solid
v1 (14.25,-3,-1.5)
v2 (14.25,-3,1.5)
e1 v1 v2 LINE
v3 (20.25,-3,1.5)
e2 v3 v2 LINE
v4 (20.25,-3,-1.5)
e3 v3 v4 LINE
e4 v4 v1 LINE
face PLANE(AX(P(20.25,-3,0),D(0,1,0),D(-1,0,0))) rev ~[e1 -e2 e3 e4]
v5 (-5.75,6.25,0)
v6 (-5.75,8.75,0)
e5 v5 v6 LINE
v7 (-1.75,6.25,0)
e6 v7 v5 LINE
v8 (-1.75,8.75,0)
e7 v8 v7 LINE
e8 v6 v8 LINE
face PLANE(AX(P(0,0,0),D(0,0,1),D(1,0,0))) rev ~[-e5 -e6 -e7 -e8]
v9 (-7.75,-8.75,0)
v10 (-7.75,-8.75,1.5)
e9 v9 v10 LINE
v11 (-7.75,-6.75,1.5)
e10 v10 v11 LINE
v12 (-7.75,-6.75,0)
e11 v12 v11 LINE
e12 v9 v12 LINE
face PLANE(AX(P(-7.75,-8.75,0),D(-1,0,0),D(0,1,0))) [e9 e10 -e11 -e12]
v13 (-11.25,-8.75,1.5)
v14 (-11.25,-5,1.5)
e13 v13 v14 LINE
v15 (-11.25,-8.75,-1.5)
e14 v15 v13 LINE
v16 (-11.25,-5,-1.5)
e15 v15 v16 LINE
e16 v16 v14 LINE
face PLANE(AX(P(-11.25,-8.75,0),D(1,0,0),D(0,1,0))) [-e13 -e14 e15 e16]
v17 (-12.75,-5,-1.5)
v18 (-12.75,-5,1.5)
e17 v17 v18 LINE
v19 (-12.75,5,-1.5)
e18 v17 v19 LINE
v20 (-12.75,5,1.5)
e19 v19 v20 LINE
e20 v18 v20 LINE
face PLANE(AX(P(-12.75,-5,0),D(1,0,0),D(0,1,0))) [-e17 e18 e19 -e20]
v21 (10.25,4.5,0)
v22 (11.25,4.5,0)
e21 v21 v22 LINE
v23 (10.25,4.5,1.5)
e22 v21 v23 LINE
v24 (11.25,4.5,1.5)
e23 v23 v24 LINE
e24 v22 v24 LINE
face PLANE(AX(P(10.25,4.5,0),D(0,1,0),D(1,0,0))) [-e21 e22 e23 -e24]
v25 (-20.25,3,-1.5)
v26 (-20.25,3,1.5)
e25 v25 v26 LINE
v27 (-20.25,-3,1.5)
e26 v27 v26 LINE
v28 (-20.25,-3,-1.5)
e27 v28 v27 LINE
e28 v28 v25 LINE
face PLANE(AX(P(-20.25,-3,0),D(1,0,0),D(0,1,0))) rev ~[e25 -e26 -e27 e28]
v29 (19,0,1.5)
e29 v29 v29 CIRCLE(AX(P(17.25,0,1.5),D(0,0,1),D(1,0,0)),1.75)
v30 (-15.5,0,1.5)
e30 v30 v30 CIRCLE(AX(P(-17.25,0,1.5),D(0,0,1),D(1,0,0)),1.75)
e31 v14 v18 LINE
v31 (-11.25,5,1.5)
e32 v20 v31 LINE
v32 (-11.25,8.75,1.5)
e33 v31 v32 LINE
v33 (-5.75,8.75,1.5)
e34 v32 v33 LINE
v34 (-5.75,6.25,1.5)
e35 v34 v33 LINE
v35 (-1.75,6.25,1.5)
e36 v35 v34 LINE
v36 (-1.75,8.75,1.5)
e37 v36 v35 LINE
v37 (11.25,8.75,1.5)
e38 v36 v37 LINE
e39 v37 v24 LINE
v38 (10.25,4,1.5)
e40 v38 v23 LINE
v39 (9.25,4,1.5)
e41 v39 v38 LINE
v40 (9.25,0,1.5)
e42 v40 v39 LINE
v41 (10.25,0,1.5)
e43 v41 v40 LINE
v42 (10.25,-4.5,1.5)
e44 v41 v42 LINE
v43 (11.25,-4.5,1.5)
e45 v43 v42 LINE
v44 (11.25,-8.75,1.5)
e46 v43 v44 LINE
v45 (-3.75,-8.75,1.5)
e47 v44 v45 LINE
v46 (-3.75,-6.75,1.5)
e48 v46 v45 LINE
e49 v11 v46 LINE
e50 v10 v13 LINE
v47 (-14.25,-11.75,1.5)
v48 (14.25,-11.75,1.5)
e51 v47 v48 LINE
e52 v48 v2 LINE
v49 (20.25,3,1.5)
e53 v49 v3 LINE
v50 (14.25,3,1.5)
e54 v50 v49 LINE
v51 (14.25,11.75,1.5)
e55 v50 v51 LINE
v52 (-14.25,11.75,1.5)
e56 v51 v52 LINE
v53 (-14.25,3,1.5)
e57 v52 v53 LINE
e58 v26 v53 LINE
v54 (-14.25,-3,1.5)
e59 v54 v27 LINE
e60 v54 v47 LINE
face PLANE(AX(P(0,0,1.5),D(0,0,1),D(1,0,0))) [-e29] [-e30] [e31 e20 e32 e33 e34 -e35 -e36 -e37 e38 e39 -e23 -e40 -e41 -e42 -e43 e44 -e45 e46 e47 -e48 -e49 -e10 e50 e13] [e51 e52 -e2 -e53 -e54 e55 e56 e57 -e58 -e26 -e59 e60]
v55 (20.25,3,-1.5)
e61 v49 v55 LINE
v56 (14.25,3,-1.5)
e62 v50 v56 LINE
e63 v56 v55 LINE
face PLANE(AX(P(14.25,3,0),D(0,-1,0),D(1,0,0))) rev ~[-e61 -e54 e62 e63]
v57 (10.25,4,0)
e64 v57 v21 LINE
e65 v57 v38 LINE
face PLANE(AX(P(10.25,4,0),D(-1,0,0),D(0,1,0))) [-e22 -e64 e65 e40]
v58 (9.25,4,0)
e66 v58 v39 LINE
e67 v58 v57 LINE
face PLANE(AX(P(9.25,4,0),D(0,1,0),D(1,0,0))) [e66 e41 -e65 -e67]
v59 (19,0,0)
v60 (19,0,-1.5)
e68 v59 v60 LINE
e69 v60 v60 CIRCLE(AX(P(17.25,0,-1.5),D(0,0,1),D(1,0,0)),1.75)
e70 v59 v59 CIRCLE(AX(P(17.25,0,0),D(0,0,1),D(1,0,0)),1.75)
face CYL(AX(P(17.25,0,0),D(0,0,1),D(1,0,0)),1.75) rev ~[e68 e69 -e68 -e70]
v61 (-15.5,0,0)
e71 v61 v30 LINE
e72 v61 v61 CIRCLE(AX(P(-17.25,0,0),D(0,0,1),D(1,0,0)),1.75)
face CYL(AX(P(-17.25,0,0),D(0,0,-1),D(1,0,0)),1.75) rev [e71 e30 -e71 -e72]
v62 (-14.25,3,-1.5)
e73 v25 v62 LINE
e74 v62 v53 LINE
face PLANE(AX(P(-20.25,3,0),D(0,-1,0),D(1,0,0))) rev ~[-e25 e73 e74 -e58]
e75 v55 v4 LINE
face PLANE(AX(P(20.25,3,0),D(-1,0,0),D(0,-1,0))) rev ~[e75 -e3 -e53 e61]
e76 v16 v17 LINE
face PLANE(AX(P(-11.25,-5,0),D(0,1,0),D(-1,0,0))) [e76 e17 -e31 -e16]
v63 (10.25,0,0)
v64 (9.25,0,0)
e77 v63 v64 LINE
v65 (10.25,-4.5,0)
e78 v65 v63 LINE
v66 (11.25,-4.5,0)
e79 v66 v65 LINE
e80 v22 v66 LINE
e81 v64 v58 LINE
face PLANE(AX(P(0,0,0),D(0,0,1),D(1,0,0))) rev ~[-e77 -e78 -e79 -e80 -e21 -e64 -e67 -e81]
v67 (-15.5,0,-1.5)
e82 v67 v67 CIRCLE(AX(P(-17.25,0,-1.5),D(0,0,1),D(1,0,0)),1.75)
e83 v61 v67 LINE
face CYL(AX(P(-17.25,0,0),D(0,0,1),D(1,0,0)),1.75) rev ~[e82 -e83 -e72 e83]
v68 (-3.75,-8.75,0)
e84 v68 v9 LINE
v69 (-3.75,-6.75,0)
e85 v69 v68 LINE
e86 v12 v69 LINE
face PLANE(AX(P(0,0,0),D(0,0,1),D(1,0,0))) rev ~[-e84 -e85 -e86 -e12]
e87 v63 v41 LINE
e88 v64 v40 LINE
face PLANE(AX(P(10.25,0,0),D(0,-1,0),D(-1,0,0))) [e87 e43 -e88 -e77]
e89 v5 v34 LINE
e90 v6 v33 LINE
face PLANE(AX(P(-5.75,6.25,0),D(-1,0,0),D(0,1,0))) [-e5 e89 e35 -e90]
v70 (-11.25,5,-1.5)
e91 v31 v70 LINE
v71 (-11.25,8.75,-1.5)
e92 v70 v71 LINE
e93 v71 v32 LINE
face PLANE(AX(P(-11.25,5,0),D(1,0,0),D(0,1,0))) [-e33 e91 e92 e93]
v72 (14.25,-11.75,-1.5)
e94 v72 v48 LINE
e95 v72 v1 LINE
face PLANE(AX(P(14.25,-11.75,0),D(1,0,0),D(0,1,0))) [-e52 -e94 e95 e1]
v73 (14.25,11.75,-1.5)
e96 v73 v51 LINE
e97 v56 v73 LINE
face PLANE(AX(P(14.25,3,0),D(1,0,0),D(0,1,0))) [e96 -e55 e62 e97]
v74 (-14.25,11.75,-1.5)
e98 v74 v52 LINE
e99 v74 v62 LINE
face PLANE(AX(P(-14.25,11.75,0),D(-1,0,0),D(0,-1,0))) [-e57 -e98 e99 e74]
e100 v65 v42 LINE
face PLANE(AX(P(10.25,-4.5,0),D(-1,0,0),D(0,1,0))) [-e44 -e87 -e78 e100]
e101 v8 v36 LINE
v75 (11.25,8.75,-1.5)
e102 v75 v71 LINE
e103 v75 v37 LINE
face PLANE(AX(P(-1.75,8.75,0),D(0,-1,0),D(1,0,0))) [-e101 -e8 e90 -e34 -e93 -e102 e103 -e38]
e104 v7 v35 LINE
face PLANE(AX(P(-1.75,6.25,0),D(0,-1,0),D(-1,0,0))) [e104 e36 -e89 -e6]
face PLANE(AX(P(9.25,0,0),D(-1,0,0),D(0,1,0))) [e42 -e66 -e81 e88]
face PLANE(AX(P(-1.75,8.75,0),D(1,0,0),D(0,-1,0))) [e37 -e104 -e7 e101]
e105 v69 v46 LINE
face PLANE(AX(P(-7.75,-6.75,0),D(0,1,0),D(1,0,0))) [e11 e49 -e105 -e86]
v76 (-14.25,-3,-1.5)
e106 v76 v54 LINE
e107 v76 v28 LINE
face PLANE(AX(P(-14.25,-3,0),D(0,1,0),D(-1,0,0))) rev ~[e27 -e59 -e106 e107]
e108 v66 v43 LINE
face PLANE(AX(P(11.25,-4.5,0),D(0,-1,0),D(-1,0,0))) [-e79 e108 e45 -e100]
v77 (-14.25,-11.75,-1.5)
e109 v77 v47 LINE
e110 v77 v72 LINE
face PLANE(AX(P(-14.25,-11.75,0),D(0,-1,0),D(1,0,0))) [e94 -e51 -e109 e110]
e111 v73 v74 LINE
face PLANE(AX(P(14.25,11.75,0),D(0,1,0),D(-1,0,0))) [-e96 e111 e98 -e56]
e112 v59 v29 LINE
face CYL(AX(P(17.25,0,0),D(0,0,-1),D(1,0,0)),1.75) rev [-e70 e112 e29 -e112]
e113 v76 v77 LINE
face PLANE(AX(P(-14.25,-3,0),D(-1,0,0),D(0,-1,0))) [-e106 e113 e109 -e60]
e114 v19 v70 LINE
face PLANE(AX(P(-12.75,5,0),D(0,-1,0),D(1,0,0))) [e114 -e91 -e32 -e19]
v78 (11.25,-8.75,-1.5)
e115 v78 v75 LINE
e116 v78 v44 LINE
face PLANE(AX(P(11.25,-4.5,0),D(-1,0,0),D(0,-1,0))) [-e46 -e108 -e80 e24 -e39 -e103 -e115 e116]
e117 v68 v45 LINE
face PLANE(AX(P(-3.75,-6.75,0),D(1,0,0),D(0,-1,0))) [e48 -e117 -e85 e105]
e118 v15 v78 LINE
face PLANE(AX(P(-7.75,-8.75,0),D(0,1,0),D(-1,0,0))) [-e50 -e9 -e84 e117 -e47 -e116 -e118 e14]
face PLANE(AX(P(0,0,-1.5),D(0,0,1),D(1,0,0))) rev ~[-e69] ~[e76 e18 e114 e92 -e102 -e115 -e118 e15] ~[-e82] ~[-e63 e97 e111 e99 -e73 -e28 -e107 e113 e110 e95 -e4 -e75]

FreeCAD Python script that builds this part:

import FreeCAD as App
import Part
import Sketcher

V = App.Vector


def add_polygon(sketch, points):
    """Adds a closed chain of lines whose ends are joined by coincident constraints."""
    first, n = sketch.GeometryCount, len(points)
    for a, b in zip(points, points[1:] + points[:1]):
        sketch.addGeometry(Part.LineSegment(App.Vector(*a, 0), App.Vector(*b, 0)), False)
    for i in range(n):
        sketch.addConstraint(Sketcher.Constraint("Coincident", first + i, 2, first + (i + 1) % n, 1))

doc = App.newDocument("Part")
body = doc.addObject("PartDesign::Body", "Body")

# Sketch on XY plane
sketch1 = body.newObject("Sketcher::SketchObject", "Sketch")
sketch1.AttachmentSupport = (doc.getObject("XY_Plane"), [""])
sketch1.MapMode = "FlatFace"
add_polygon(sketch1, [(14.2, 3), (14.2, 11.8), (-14.2, 11.8), (-14.2, 3), (-20.2, 3), (-20.2, -3), (-14.2, -3), (-14.2, -11.8), (14.2, -11.8), (14.2, -3), (20.2, -3), (20.2, 3)])  # lines 0-11
add_polygon(sketch1, [(-11.2, 5), (-11.2, 8.8), (11.2, 8.8), (11.2, -8.8), (-11.2, -8.8), (-11.2, -5), (-12.8, -5), (-12.8, 5)])  # lines 12-19
sketch1.addGeometry(Part.Circle(V(17.2, 0, 0), V(0, 0, 1), 1.8), False)  # 20
sketch1.addGeometry(Part.Circle(V(-17.2, 0, 0), V(0, 0, 1), 1.8), False)  # 21
sketch1.addConstraint([
    Sketcher.Constraint("Vertical", 0),
    Sketcher.Constraint("Horizontal", 1),
    Sketcher.Constraint("Vertical", 2),
    Sketcher.Constraint("Horizontal", 3),
    Sketcher.Constraint("Vertical", 4),
    Sketcher.Constraint("Horizontal", 5),
    Sketcher.Constraint("Vertical", 6),
    Sketcher.Constraint("Horizontal", 7),
    Sketcher.Constraint("Vertical", 8),
    Sketcher.Constraint("Horizontal", 9),
    Sketcher.Constraint("Vertical", 10),
    Sketcher.Constraint("Horizontal", 11),
    Sketcher.Constraint("Vertical", 12),
    Sketcher.Constraint("Horizontal", 13),
    Sketcher.Constraint("Vertical", 14),
    Sketcher.Constraint("Horizontal", 15),
    Sketcher.Constraint("Vertical", 16),
    Sketcher.Constraint("Horizontal", 17),
    Sketcher.Constraint("Vertical", 18),
    Sketcher.Constraint("Horizontal", 19),
    Sketcher.Constraint("Equal", 20, 21),
    Sketcher.Constraint("Symmetric", 20, 3, 21, 3, -1, 1),
    Sketcher.Constraint("Symmetric", 0, 2, 6, 2, -1, 1),
    Sketcher.Constraint("Symmetric", 2, 2, 8, 2, -1, 1),
    Sketcher.Constraint("Symmetric", 4, 2, 10, 2, -1, 1),
    Sketcher.Constraint("Symmetric", 12, 2, 14, 2, -1, 1),
    Sketcher.Constraint("Symmetric", 5, 2, 8, 2, -2),
    Sketcher.Constraint("Symmetric", 16, 2, 19, 2, -1),
    Sketcher.Constraint("PointOnObject", 20, 3, -1),
    Sketcher.Constraint("Equal", 11, 4),
    Sketcher.Constraint("Diameter", 20, 3.5),
    Sketcher.Constraint("DistanceX", 3, 2, 3, 1, 6.0),
    Sketcher.Constraint("DistanceY", 18, 1, 18, 2, 10.0),
    Sketcher.Constraint("DistanceX", 13, 1, 13, 2, 22.5),
    Sketcher.Constraint("DistanceX", 17, 2, 17, 1, 1.5),
    Sketcher.Constraint("DistanceY", 14, 2, 14, 1, 17.5),
    Sketcher.Constraint("DistanceX", 0, 2, 20, 3, 3.0),
    Sketcher.Constraint("DistanceX", 1, 2, 12, 2, 3.0),
    Sketcher.Constraint("DistanceY", 12, 2, 1, 2, 3.0),
])
pad1 = body.newObject("PartDesign::Pad", "Pad")
pad1.Profile = sketch1
pad1.Length = 1.5
pad1.Reversed = True

# Sketch on XY plane
sketch2 = body.newObject("Sketcher::SketchObject", "Sketch001")
sketch2.AttachmentSupport = (doc.getObject("XY_Plane"), [""])
sketch2.MapMode = "FlatFace"
add_polygon(sketch2, [(14.2, 3), (14.2, 11.8), (-14.2, 11.8), (-14.2, 3), (-20.2, 3), (-20.2, -3), (-14.2, -3), (-14.2, -11.8), (14.2, -11.8), (14.2, -3), (20.2, -3), (20.2, 3)])  # lines 0-11
add_polygon(sketch2, [(-1.8, 6.2), (-1.8, 8.8), (11.2, 8.8), (11.2, 4.5), (10.2, 4.5), (10.2, 4), (9.2, 4), (9.2, 0), (10.2, 0), (10.2, -4.5), (11.2, -4.5), (11.2, -8.8), (-3.8, -8.8), (-3.8, -6.8), (-7.8, -6.8), (-7.8, -8.8), (-11.2, -8.8), (-11.2, -5), (-12.8, -5), (-12.8, 5), (-11.2, 5), (-11.2, 8.8), (-5.8, 8.8), (-5.8, 6.2)])  # lines 12-35
sketch2.addGeometry(Part.Circle(V(17.2, 0, 0), V(0, 0, 1), 1.8), False)  # 36
sketch2.addGeometry(Part.Circle(V(-17.2, 0, 0), V(0, 0, 1), 1.8), False)  # 37
sketch2.addConstraint([
    Sketcher.Constraint("Vertical", 0),
    Sketcher.Constraint("Horizontal", 1),
    Sketcher.Constraint("Vertical", 2),
    Sketcher.Constraint("Horizontal", 3),
    Sketcher.Constraint("Vertical", 4),
    Sketcher.Constraint("Horizontal", 5),
    Sketcher.Constraint("Vertical", 6),
    Sketcher.Constraint("Horizontal", 7),
    Sketcher.Constraint("Vertical", 8),
    Sketcher.Constraint("Horizontal", 9),
    Sketcher.Constraint("Vertical", 10),
    Sketcher.Constraint("Horizontal", 11),
    Sketcher.Constraint("Vertical", 12),
    Sketcher.Constraint("Horizontal", 13),
    Sketcher.Constraint("Vertical", 14),
    Sketcher.Constraint("Horizontal", 15),
    Sketcher.Constraint("Vertical", 16),
    Sketcher.Constraint("Horizontal", 17),
    Sketcher.Constraint("Vertical", 18),
    Sketcher.Constraint("Horizontal", 19),
    Sketcher.Constraint("Vertical", 20),
    Sketcher.Constraint("Horizontal", 21),
    Sketcher.Constraint("Vertical", 22),
    Sketcher.Constraint("Horizontal", 23),
    Sketcher.Constraint("Vertical", 24),
    Sketcher.Constraint("Horizontal", 25),
    Sketcher.Constraint("Vertical", 26),
    Sketcher.Constraint("Horizontal", 27),
    Sketcher.Constraint("Vertical", 28),
    Sketcher.Constraint("Horizontal", 29),
    Sketcher.Constraint("Vertical", 30),
    Sketcher.Constraint("Horizontal", 31),
    Sketcher.Constraint("Vertical", 32),
    Sketcher.Constraint("Horizontal", 33),
    Sketcher.Constraint("Vertical", 34),
    Sketcher.Constraint("Horizontal", 35),
    Sketcher.Constraint("Equal", 36, 37),
    Sketcher.Constraint("Symmetric", 36, 3, 37, 3, -1, 1),
    Sketcher.Constraint("Symmetric", 0, 2, 6, 2, -1, 1),
    Sketcher.Constraint("Symmetric", 2, 2, 8, 2, -1, 1),
    Sketcher.Constraint("Symmetric", 4, 2, 10, 2, -1, 1),
    Sketcher.Constraint("Symmetric", 13, 2, 27, 2, -1, 1),
    Sketcher.Constraint("Symmetric", 22, 2, 32, 2, -1, 1),
    Sketcher.Constraint("Symmetric", 5, 2, 8, 2, -2),
    Sketcher.Constraint("Symmetric", 22, 2, 27, 2, -2),
    Sketcher.Constraint("Symmetric", 15, 2, 20, 2, -1),
    Sketcher.Constraint("PointOnObject", 36, 3, -1),
    Sketcher.Constraint("PointOnObject", 18, 2, -1),
    Sketcher.Constraint("Equal", 15, 17),
    Sketcher.Constraint("Equal", 25, 35),
    Sketcher.Constraint("Equal", 11, 4),
    Sketcher.Constraint("Equal", 35, 18),
    Sketcher.Constraint("Equal", 28, 32),
    Sketcher.Constraint("Diameter", 36, 3.5),
    Sketcher.Constraint("DistanceX", 3, 2, 3, 1, 6.0),
    Sketcher.Constraint("DistanceX", 13, 1, 13, 2, 13.0),
    Sketcher.Constraint("DistanceX", 15, 2, 15, 1, 1.0),
    Sketcher.Constraint("DistanceX", 25, 2, 25, 1, 4.0),
    Sketcher.Constraint("DistanceY", 24, 1, 24, 2, 2.0),
    Sketcher.Constraint("DistanceY", 30, 1, 30, 2, 10.0),
    Sketcher.Constraint("DistanceX", 27, 2, 27, 1, 3.5),
    Sketcher.Constraint("DistanceX", 29, 2, 29, 1, 1.5),
    Sketcher.Constraint("DistanceY", 12, 1, 12, 2, 2.5),
    Sketcher.Constraint("DistanceY", 20, 2, 20, 1, 4.5),
    Sketcher.Constraint("DistanceX", 0, 2, 36, 3, 3.0),
    Sketcher.Constraint("DistanceY", 12, 2, 1, 2, 3.0),
    Sketcher.Constraint("DistanceX", 13, 2, 0, 2, 3.0),
    Sketcher.Constraint("DistanceX", 23, 2, 23, 1, 15.0),
    Sketcher.Constraint("DistanceY", 0, 1, 0, 2, 8.75),
])
pad2 = body.newObject("PartDesign::Pad", "Pad001")
pad2.Profile = sketch2
pad2.Length = 1.5

doc.recompute()
